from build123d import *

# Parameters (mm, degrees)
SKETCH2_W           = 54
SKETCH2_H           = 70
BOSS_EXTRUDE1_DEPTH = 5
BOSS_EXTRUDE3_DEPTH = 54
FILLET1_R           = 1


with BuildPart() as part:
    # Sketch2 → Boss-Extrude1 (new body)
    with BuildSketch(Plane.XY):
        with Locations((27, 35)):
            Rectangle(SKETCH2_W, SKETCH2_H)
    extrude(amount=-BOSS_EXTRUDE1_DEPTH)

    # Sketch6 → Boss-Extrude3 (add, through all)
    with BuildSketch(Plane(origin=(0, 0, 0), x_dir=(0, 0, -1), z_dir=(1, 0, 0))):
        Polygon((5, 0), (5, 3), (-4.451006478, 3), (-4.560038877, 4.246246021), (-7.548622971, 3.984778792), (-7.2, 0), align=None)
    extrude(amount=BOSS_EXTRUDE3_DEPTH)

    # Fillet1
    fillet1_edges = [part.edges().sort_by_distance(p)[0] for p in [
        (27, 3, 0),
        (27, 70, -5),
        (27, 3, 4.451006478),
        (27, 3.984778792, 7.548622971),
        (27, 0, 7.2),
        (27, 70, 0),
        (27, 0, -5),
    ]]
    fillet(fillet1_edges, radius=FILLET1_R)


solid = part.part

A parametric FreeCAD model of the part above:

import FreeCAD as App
import Part
import Sketcher

V = App.Vector
Q = App.Units.Quantity


def edges_at(feature, points):
    """Names of the edges that pass closest to the given points."""
    edges = feature.Shape.Edges
    near = lambda p: min(range(len(edges)), key=lambda i: edges[i].distToShape(Part.Vertex(*p))[0])
    return sorted({f"Edge{near(p) + 1}" for p in points})

doc = App.newDocument("Part")
body = doc.addObject("PartDesign::Body", "Body")

sketch1 = body.newObject("Sketcher::SketchObject", "Sketch")
sketch1.AttachmentSupport = (doc.getObject("XY_Plane"), [""])
sketch1.MapMode = "FlatFace"
sketch1.addGeometry([
    Part.LineSegment(V(0, 70, 0), V(0, 0, 0)),
    Part.LineSegment(V(0, 0, 0), V(54, 0, 0)),
    Part.LineSegment(V(54, 0, 0), V(54, 70, 0)),
    Part.LineSegment(V(54, 70, 0), V(0, 70, 0)),
], False)
sketch1.addConstraint([
    Sketcher.Constraint("Coincident", 0, 2, 1, 1),
    Sketcher.Constraint("Coincident", 1, 2, 2, 1),
    Sketcher.Constraint("Coincident", 2, 2, 3, 1),
    Sketcher.Constraint("Coincident", 3, 2, 0, 1),
    Sketcher.Constraint("Vertical", 0),
    Sketcher.Constraint("Horizontal", 1),
    Sketcher.Constraint("Vertical", 2),
    Sketcher.Constraint("Horizontal", 3),
    Sketcher.Constraint("Coincident", 0, 2, -1, 1),
    Sketcher.Constraint("DistanceX", 1, 1, 1, 2, Q("54 mm")),
    Sketcher.Constraint("DistanceY", 0, 2, 0, 1, Q("70 mm")),
])
pad1 = body.newObject("PartDesign::Pad", "Pad")
pad1.Profile = sketch1
pad1.Length = 5
pad1.Reversed = True

sketch2 = body.newObject("Sketcher::SketchObject", "Sketch001")
sketch2.AttachmentSupport = (doc.getObject("YZ_Plane"), [""])
sketch2.MapMode = "FlatFace"
sketch2.addGeometry([
    Part.LineSegment(V(0, -5, 0), V(3, -5, 0)),
    Part.LineSegment(V(3, -5, 0), V(3, 4.5, 0)),
    Part.LineSegment(V(3, 4.5, 0), V(4.2, 4.6, 0)),
    Part.LineSegment(V(4.2, 4.6, 0), V(4, 7.5, 0)),
    Part.LineSegment(V(4, 7.5, 0), V(0, 7.2, 0)),
    Part.LineSegment(V(0, 7.2, 0), V(0, -5, 0)),
], False)
sketch2.addConstraint([
    Sketcher.Constraint("Coincident", 0, 2, 1, 1),
    Sketcher.Constraint("Coincident", 1, 2, 2, 1),
    Sketcher.Constraint("Coincident", 2, 2, 3, 1),
    Sketcher.Constraint("Coincident", 3, 2, 4, 1),
    Sketcher.Constraint("Coincident", 4, 2, 5, 1),
    Sketcher.Constraint("Coincident", 5, 2, 0, 1),
    Sketcher.Constraint("Horizontal", 0),
    Sketcher.Constraint("Vertical", 1),
    Sketcher.Constraint("Vertical", 5),
    Sketcher.Constraint("PointOnObject", 4, 2, -2),
    Sketcher.Constraint("Perpendicular", 2, 3),
    Sketcher.Constraint("Perpendicular", 3, 4),
    Sketcher.Constraint("DistanceX", 0, 1, 0, 2, Q("3 mm")),
    Sketcher.Constraint("Angle", 2, Q("5 deg")),
    Sketcher.Constraint("Distance", 3, Q("3 mm")),
    Sketcher.Constraint("Distance", 4, Q("4 mm")),
    Sketcher.Constraint("DistanceY", 5, 2, 5, 1, Q("12.2 mm")),
    Sketcher.Constraint("DistanceY", 0, 2, -1, 1, Q("5 mm")),
])
pad2 = body.newObject("PartDesign::Pad", "Pad001")
pad2.Profile = sketch2
pad2.Length = 54
doc.recompute()

fillet = body.newObject("PartDesign::Fillet", "Fillet")
fillet.Base = (pad2, edges_at(pad2, [
    (27, 3, 0),
    (27, 70, -5),
    (27, 3, 4.451),
    (27, 3.985, 7.549),
    (27, 0, 7.2),
    (27, 70, 0),
    (27, 0, -5),
]))
fillet.Radius = 1

doc.recompute()
